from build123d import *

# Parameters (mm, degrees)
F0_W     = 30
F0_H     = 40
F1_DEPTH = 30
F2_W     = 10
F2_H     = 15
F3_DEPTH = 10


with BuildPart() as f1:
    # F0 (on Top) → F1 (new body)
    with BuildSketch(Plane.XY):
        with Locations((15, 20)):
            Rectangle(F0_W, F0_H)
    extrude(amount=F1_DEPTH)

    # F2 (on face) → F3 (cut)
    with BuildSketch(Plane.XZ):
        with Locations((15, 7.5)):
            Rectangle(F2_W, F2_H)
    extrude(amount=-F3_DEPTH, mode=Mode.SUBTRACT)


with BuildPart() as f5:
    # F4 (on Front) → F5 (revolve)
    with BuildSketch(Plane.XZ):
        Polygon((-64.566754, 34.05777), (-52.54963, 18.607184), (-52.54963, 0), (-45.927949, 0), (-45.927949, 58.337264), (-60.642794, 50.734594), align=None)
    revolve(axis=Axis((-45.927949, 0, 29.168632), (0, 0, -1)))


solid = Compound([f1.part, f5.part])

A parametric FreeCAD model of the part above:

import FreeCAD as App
import Part
import Sketcher

doc = App.newDocument("Part")
params = doc.addObject("Spreadsheet::Sheet", "Params")
for row, (alias, value) in enumerate([
    ("sketch1_width", "30 mm"),
    ("sketch1_height", "40 mm"),
    ("pad1_length", "30 mm"),
    ("sketch2_width", "10 mm"),
    ("sketch2_height", "15 mm"),
    ("pocket1_length", "10 mm"),
    ("revolution_angle", "360 deg"),
], start=1):
    params.set(f"A{row}", alias)
    params.set(f"B{row}", "=" + value)
    params.setAlias(f"B{row}", alias)

body = doc.addObject("PartDesign::Body", "Body")

# Sketch on XY plane
sketch1 = doc.addObject("Sketcher::SketchObject", "Sketch")
body.addObject(sketch1)
sketch1.AttachmentSupport = (doc.XY_Plane, [""])
sketch1.MapMode = "FlatFace"
sketch1.addGeometry([
    Part.LineSegment(App.Vector(0, 40, 0), App.Vector(0, 0, 0)),
    Part.LineSegment(App.Vector(0, 0, 0), App.Vector(30, 0, 0)),
    Part.LineSegment(App.Vector(30, 0, 0), App.Vector(30, 40, 0)),
    Part.LineSegment(App.Vector(30, 40, 0), App.Vector(0, 40, 0)),
], False)
sketch1.addConstraint([
    Sketcher.Constraint("Coincident", 0, 2, 1, 1),
    Sketcher.Constraint("Coincident", 1, 2, 2, 1),
    Sketcher.Constraint("Coincident", 2, 2, 3, 1),
    Sketcher.Constraint("Coincident", 3, 2, 0, 1),
    Sketcher.Constraint("Vertical", 0),
    Sketcher.Constraint("Horizontal", 1),
    Sketcher.Constraint("Vertical", 2),
    Sketcher.Constraint("Horizontal", 3),
    Sketcher.Constraint("Coincident", 0, 2, -1, 1),
    Sketcher.Constraint("DistanceX", 1, 1, 1, 2, 30.0),
    Sketcher.Constraint("DistanceY", 0, 2, 0, 1, 40.0),
])
sketch1.setExpression("Constraints[9]", "Params.sketch1_width")
sketch1.setExpression("Constraints[10]", "Params.sketch1_height")
pad1 = doc.addObject("PartDesign::Pad", "Pad")
body.addObject(pad1)
pad1.Profile = sketch1
pad1.setExpression("Length", "Params.pad1_length")

# Sketch on XZ plane
sketch2 = doc.addObject("Sketcher::SketchObject", "Sketch001")
body.addObject(sketch2)
sketch2.AttachmentSupport = (doc.XZ_Plane, [""])
sketch2.MapMode = "FlatFace"
sketch2.addGeometry([
    Part.LineSegment(App.Vector(10, 15, 0), App.Vector(10, 0, 0)),
    Part.LineSegment(App.Vector(10, 0, 0), App.Vector(20, 0, 0)),
    Part.LineSegment(App.Vector(20, 0, 0), App.Vector(20, 15, 0)),
    Part.LineSegment(App.Vector(20, 15, 0), App.Vector(10, 15, 0)),
], False)
sketch2.addConstraint([
    Sketcher.Constraint("Coincident", 0, 2, 1, 1),
    Sketcher.Constraint("Coincident", 1, 2, 2, 1),
    Sketcher.Constraint("Coincident", 2, 2, 3, 1),
    Sketcher.Constraint("Coincident", 3, 2, 0, 1),
    Sketcher.Constraint("Vertical", 0),
    Sketcher.Constraint("Horizontal", 1),
    Sketcher.Constraint("Vertical", 2),
    Sketcher.Constraint("Horizontal", 3),
    Sketcher.Constraint("PointOnObject", 0, 2, -1),
    Sketcher.Constraint("DistanceX", 1, 1, 1, 2, 10.0),
    Sketcher.Constraint("DistanceY", 0, 2, 0, 1, 15.0),
    Sketcher.Constraint("DistanceX", -1, 1, 0, 2, 10.0),
])
sketch2.setExpression("Constraints[9]", "Params.sketch2_width")
sketch2.setExpression("Constraints[10]", "Params.sketch2_height")
pocket1 = doc.addObject("PartDesign::Pocket", "Pocket")
body.addObject(pocket1)
pocket1.Profile = sketch2
pocket1.setExpression("Length", "Params.pocket1_length")
body2 = doc.addObject("PartDesign::Body", "Body001")

# Sketch on XZ plane
sketch3 = doc.addObject("Sketcher::SketchObject", "Sketch002")
body2.addObject(sketch3)
sketch3.AttachmentSupport = (doc.getObject("XZ_Plane001"), [""])
sketch3.MapMode = "FlatFace"
sketch3.addGeometry([
    Part.LineSegment(App.Vector(-65, 34, 0), App.Vector(-53, 19, 0)),  # 0
    Part.LineSegment(App.Vector(-53, 19, 0), App.Vector(-53, 0, 0)),  # 1
    Part.LineSegment(App.Vector(-53, 0, 0), App.Vector(-46, 0, 0)),  # 2
    Part.LineSegment(App.Vector(-46, 0, 0), App.Vector(-46, 58, 0)),  # 3
    Part.LineSegment(App.Vector(-46, 58, 0), App.Vector(-61, 51, 0)),  # 4
    Part.LineSegment(App.Vector(-61, 51, 0), App.Vector(-65, 34, 0)),  # 5
], False)
sketch3.addGeometry(Part.LineSegment(App.Vector(-46, 58, 0), App.Vector(-46, 0, 0)), True)  # axis
sketch3.addConstraint([
    Sketcher.Constraint("Coincident", 0, 2, 1, 1),
    Sketcher.Constraint("Coincident", 1, 2, 2, 1),
    Sketcher.Constraint("Coincident", 2, 2, 3, 1),
    Sketcher.Constraint("Coincident", 3, 2, 4, 1),
    Sketcher.Constraint("Coincident", 4, 2, 5, 1),
    Sketcher.Constraint("Coincident", 5, 2, 0, 1),
    Sketcher.Constraint("Vertical", 1),
    Sketcher.Constraint("Horizontal", 2),
    Sketcher.Constraint("Vertical", 3),
    Sketcher.Constraint("Vertical", 6),
    Sketcher.Constraint("Coincident", 6, 1, 3, 2),
    Sketcher.Constraint("PointOnObject", 1, 2, -1),
    Sketcher.Constraint("PointOnObject", 6, 2, -1),
    Sketcher.Constraint("DistanceX", 2, 1, 2, 2, 6.621681),
    Sketcher.Constraint("DistanceY", 1, 2, 1, 1, 18.607184),
    Sketcher.Constraint("DistanceY", 3, 1, 3, 2, 58.337264),
    Sketcher.Constraint("DistanceX", 0, 2, -1, 1, 52.54963),
    Sketcher.Constraint("DistanceY", -1, 1, 5, 2, 34.05777),
    Sketcher.Constraint("DistanceY", 4, 2, 3, 2, 7.60267),
    Sketcher.Constraint("DistanceX", 5, 2, 4, 2, 3.92396),
    Sketcher.Constraint("Distance", 0, 19.573755),
])
revolution = doc.addObject("PartDesign::Revolution", "Revolution")
body2.addObject(revolution)
revolution.Profile = sketch3
revolution.ReferenceAxis = (sketch3, ["Axis0"])
revolution.setExpression("Angle", "Params.revolution_angle")

doc.recompute()
